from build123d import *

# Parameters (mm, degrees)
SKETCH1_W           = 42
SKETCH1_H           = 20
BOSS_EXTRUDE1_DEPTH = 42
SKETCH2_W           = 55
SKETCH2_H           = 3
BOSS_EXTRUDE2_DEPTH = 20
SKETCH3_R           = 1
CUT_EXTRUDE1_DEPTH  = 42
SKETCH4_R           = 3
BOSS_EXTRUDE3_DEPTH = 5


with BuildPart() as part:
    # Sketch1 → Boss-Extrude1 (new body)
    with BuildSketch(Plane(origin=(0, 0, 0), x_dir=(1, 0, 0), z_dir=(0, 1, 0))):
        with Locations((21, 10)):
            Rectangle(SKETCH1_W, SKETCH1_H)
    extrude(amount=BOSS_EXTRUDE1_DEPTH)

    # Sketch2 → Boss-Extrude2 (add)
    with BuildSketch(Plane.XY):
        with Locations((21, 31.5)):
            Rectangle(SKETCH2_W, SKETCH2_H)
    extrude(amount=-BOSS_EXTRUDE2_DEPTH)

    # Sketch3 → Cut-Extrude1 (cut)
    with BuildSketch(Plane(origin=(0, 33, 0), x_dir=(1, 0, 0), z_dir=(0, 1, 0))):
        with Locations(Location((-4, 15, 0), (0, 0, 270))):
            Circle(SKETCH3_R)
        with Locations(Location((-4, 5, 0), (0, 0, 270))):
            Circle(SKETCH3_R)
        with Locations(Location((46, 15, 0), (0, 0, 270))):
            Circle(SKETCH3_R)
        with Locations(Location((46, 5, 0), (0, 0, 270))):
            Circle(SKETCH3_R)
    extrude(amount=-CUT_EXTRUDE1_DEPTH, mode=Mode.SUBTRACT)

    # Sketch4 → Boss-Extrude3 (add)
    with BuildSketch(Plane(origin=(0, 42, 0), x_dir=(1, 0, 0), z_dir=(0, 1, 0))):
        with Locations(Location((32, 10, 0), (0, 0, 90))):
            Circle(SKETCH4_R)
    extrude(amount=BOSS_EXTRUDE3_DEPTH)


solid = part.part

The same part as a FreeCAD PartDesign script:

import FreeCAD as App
import Part
import Sketcher
from FreeCAD import Vector
Q = App.Units.Quantity

doc = App.newDocument("Part")
body = doc.addObject("PartDesign::Body", "Body")

# Sketch on XZ plane
sketch1 = body.newObject("Sketcher::SketchObject", "Sketch")
sketch1.AttachmentSupport = (doc.getObject("XZ_Plane"), [""])
sketch1.MapMode = "FlatFace"
sketch1.addGeometry([
    Part.LineSegment(Vector(0, -20, 0), Vector(0, 0, 0)),
    Part.LineSegment(Vector(0, 0, 0), Vector(42, 0, 0)),
    Part.LineSegment(Vector(42, 0, 0), Vector(42, -20, 0)),
    Part.LineSegment(Vector(42, -20, 0), Vector(0, -20, 0)),
], False)
sketch1.addConstraint([
    Sketcher.Constraint("Coincident", 0, 2, 1, 1),
    Sketcher.Constraint("Coincident", 1, 2, 2, 1),
    Sketcher.Constraint("Coincident", 2, 2, 3, 1),
    Sketcher.Constraint("Coincident", 3, 2, 0, 1),
    Sketcher.Constraint("Vertical", 0),
    Sketcher.Constraint("Horizontal", 1),
    Sketcher.Constraint("Vertical", 2),
    Sketcher.Constraint("Horizontal", 3),
    Sketcher.Constraint("Coincident", 0, 2, -1, 1),
    Sketcher.Constraint("DistanceX", 1, 1, 1, 2, Q("42 mm")),
    Sketcher.Constraint("DistanceY", 0, 1, 0, 2, Q("20 mm")),
])
pad1 = body.newObject("PartDesign::Pad", "Pad")
pad1.Profile = sketch1
pad1.Length = 42
pad1.Reversed = True

# Sketch on XY plane
sketch2 = body.newObject("Sketcher::SketchObject", "Sketch001")
sketch2.AttachmentSupport = (doc.getObject("XY_Plane"), [""])
sketch2.MapMode = "FlatFace"
sketch2.addGeometry([
    Part.LineSegment(Vector(-6.5, 33, 0), Vector(-6.5, 30, 0)),
    Part.LineSegment(Vector(-6.5, 30, 0), Vector(48.5, 30, 0)),
    Part.LineSegment(Vector(48.5, 30, 0), Vector(48.5, 33, 0)),
    Part.LineSegment(Vector(48.5, 33, 0), Vector(-6.5, 33, 0)),
], False)
sketch2.addConstraint([
    Sketcher.Constraint("Coincident", 0, 2, 1, 1),
    Sketcher.Constraint("Coincident", 1, 2, 2, 1),
    Sketcher.Constraint("Coincident", 2, 2, 3, 1),
    Sketcher.Constraint("Coincident", 3, 2, 0, 1),
    Sketcher.Constraint("Vertical", 0),
    Sketcher.Constraint("Horizontal", 1),
    Sketcher.Constraint("Vertical", 2),
    Sketcher.Constraint("Horizontal", 3),
    Sketcher.Constraint("DistanceX", 1, 1, 1, 2, Q("55 mm")),
    Sketcher.Constraint("DistanceY", 0, 2, 0, 1, Q("3 mm")),
    Sketcher.Constraint("DistanceY", -1, 1, 0, 2, Q("30 mm")),
    Sketcher.Constraint("DistanceX", 0, 2, -1, 1, Q("6.5 mm")),
])
pad2 = body.newObject("PartDesign::Pad", "Pad001")
pad2.Profile = sketch2
pad2.Length = 20
pad2.Reversed = True

# Sketch on XZ plane
sketch3 = body.newObject("Sketcher::SketchObject", "Sketch002")
sketch3.AttachmentSupport = (doc.getObject("XZ_Plane"), [""])
sketch3.MapMode = "FlatFace"
sketch3.AttachmentOffset = App.Placement(Vector(0, 0, -33), App.Rotation())
sketch3.addGeometry([
    Part.Circle(Vector(-4, -15, 0), Vector(0, 0, 1), 1),
    Part.Circle(Vector(-4, -5, 0), Vector(0, 0, 1), 1),
    Part.Circle(Vector(46, -15, 0), Vector(0, 0, 1), 1),
    Part.Circle(Vector(46, -5, 0), Vector(0, 0, 1), 1),
], False)
sketch3.addConstraint([
    Sketcher.Constraint("Equal", 0, 1),
    Sketcher.Constraint("Equal", 1, 2),
    Sketcher.Constraint("Equal", 2, 3),
    Sketcher.Constraint("Horizontal", 0, 3, 2, 3),
    Sketcher.Constraint("Horizontal", 1, 3, 3, 3),
    Sketcher.Constraint("Vertical", 0, 3, 1, 3),
    Sketcher.Constraint("Vertical", 2, 3, 3, 3),
    Sketcher.Constraint("Diameter", 0, Q("2 mm")),
    Sketcher.Constraint("DistanceX", 0, 3, -1, 1, Q("4 mm")),
    Sketcher.Constraint("DistanceY", 0, 3, -1, 1, Q("15 mm")),
    Sketcher.Constraint("DistanceY", 1, 3, -1, 1, Q("5 mm")),
    Sketcher.Constraint("DistanceX", -1, 1, 2, 3, Q("46 mm")),
])
pocket1 = body.newObject("PartDesign::Pocket", "Pocket")
pocket1.Profile = sketch3
pocket1.Length = 42
pocket1.Reversed = True

# Sketch on XZ plane
sketch4 = body.newObject("Sketcher::SketchObject", "Sketch003")
sketch4.AttachmentSupport = (doc.getObject("XZ_Plane"), [""])
sketch4.MapMode = "FlatFace"
sketch4.AttachmentOffset = App.Placement(Vector(0, 0, -42), App.Rotation())
sketch4.addGeometry(Part.Circle(Vector(32, -10, 0), Vector(0, 0, 1), 3), False)
sketch4.addConstraint([
    Sketcher.Constraint("Diameter", 0, Q("6 mm")),
    Sketcher.Constraint("DistanceX", -1, 1, 0, 3, Q("32 mm")),
    Sketcher.Constraint("DistanceY", 0, 3, -1, 1, Q("10 mm")),
])
pad3 = body.newObject("PartDesign::Pad", "Pad002")
pad3.Profile = sketch4
pad3.Length = 5
pad3.Reversed = True

doc.recompute()
